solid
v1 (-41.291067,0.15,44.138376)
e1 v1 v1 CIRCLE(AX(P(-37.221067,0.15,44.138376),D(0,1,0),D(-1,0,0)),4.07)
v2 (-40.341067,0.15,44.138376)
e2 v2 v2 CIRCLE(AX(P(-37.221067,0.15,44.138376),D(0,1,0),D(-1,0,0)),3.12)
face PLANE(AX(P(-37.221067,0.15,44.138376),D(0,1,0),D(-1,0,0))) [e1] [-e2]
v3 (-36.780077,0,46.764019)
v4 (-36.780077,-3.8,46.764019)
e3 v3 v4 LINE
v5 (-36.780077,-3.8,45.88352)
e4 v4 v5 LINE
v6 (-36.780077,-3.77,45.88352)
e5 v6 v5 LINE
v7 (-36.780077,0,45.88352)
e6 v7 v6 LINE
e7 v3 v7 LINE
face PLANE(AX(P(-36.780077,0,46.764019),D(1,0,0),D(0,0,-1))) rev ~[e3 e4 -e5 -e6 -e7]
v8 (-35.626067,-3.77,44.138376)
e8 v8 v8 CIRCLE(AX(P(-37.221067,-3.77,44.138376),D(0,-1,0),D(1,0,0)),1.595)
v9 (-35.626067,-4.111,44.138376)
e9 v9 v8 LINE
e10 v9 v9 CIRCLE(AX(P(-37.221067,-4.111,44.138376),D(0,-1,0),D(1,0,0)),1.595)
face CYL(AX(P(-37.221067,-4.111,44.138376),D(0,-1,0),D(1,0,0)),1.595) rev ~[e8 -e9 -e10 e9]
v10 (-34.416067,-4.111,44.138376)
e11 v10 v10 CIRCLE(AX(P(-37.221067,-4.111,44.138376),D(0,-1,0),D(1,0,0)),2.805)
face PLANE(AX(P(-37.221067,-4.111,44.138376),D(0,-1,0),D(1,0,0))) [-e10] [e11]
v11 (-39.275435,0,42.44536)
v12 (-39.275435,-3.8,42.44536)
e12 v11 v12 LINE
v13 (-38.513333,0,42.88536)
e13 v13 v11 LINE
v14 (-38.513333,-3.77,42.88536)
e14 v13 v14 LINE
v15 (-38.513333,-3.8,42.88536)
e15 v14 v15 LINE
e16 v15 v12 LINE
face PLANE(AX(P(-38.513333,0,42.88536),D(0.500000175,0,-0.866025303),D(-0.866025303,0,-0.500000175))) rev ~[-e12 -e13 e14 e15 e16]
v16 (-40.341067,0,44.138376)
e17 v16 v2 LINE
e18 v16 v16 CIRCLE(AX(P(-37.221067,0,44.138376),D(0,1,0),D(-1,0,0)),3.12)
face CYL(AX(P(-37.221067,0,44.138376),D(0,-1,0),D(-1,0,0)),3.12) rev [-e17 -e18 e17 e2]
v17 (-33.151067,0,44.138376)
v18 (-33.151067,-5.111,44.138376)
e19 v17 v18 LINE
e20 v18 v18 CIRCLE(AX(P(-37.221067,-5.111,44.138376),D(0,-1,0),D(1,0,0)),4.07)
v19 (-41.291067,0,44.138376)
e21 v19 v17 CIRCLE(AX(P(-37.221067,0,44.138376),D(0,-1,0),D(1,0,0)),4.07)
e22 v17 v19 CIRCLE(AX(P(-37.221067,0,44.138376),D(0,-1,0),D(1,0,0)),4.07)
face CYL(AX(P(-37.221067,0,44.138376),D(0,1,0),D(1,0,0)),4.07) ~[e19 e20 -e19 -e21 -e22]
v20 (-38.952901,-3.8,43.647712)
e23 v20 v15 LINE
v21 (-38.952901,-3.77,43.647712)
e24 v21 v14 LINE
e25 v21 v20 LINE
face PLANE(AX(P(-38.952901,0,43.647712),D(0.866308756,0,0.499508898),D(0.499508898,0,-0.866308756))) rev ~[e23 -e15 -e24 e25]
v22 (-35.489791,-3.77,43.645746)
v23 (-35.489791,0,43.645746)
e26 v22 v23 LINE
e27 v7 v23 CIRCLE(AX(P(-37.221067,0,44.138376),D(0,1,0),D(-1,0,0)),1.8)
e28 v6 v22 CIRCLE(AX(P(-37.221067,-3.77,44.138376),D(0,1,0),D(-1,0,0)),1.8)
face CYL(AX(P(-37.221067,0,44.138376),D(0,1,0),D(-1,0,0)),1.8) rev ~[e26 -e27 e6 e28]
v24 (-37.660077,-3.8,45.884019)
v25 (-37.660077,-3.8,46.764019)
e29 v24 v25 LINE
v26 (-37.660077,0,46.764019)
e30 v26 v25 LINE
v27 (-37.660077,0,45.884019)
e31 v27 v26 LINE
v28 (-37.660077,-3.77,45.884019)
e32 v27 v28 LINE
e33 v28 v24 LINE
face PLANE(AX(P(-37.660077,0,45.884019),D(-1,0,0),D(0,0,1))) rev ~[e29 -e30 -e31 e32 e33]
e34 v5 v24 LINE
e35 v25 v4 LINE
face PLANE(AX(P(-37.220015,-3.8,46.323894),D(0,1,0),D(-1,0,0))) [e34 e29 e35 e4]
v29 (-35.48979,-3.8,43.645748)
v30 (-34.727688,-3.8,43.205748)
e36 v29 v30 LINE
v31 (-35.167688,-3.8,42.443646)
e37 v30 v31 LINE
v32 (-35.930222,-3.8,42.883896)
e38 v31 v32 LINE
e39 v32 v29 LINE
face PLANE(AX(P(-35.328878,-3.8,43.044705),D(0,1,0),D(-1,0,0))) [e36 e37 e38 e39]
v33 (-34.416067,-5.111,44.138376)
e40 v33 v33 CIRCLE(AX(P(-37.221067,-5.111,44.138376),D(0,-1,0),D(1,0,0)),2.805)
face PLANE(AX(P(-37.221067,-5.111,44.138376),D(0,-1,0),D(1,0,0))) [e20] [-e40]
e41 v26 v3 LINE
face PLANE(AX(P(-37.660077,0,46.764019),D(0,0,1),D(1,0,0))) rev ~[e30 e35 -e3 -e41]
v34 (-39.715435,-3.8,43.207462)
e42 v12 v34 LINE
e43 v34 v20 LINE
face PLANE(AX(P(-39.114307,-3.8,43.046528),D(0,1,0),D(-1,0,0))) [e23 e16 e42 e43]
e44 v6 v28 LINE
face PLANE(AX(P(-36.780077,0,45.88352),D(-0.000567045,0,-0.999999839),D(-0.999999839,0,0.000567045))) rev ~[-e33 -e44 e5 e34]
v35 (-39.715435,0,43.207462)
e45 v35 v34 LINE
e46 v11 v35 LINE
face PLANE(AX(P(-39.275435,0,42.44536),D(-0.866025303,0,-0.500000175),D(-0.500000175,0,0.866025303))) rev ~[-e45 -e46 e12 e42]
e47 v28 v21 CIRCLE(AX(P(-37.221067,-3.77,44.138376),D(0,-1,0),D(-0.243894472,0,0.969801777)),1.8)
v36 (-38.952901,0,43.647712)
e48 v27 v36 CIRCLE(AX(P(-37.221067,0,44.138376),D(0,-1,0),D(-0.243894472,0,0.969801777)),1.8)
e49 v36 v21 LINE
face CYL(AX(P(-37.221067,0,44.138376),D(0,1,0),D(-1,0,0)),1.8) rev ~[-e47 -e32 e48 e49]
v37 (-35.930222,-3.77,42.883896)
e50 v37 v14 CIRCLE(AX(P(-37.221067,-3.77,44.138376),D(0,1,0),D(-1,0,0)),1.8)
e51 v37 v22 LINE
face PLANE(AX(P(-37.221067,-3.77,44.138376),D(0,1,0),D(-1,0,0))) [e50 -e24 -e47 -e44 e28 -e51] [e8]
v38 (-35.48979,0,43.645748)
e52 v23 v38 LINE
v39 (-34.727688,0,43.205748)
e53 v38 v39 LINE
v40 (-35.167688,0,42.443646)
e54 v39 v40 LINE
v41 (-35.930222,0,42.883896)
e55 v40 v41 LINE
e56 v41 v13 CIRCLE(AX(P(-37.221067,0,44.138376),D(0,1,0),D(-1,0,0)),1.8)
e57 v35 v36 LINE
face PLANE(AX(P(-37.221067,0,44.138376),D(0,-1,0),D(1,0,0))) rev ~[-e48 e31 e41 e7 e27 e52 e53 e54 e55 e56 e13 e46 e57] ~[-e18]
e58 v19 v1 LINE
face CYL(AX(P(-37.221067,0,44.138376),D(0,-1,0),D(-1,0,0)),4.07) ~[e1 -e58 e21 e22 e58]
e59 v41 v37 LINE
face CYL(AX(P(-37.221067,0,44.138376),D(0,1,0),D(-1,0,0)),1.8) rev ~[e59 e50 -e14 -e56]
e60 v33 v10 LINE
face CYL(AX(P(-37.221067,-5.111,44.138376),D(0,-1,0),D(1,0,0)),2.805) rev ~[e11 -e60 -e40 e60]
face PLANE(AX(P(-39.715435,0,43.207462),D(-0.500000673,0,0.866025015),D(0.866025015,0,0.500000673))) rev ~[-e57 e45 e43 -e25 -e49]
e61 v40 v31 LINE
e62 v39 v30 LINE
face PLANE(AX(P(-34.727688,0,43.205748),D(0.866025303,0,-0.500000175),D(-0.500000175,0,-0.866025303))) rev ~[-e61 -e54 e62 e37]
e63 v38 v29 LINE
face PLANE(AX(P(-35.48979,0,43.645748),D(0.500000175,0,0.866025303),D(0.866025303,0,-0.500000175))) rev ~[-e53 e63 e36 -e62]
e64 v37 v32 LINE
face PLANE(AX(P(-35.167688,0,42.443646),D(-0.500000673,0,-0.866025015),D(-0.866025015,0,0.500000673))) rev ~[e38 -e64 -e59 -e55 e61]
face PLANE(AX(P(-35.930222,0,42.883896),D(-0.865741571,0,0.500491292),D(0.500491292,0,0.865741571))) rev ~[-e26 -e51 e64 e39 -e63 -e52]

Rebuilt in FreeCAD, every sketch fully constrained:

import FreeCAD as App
import Part
import Sketcher
from FreeCAD import Vector
Q = App.Units.Quantity


def add_polygon(sketch, points):
    """Adds a closed chain of lines whose ends are joined by coincident constraints."""
    first, n = sketch.GeometryCount, len(points)
    for a, b in zip(points, points[1:] + points[:1]):
        sketch.addGeometry(Part.LineSegment(App.Vector(*a, 0), App.Vector(*b, 0)), False)
    for i in range(n):
        sketch.addConstraint(Sketcher.Constraint("Coincident", first + i, 2, first + (i + 1) % n, 1))

doc = App.newDocument("Part")
params = doc.addObject("Spreadsheet::Sheet", "Params")
for row, (alias, value) in enumerate([
    ("sketch1_diameter", "8.14 mm"),
    ("pad1_length", "5.111 mm"),
    ("sketch2_diameter", "5.61 mm"),
    ("pocket1_length", "1 mm"),
    ("sketch3_diameter", "3.6 mm"),
    ("pocket2_length", "3.77 mm"),
    ("sketch4_diameter", "3.19 mm"),
    ("sketch5_width", "0.88 mm"),
    ("pocket4_length", "3.8 mm"),
    ("sketch6_diameter", "8.14 mm"),
    ("sketch6_diameter2", "6.24 mm"),
    ("pad2_length", "0.15 mm"),
], start=1):
    params.set(f"A{row}", alias)
    params.set(f"B{row}", "=" + value)
    params.setAlias(f"B{row}", alias)

body = doc.addObject("PartDesign::Body", "Body")

# Sketch on XZ plane
sketch1 = body.newObject("Sketcher::SketchObject", "Sketch")
sketch1.AttachmentSupport = (doc.getObject("XZ_Plane"), [""])
sketch1.MapMode = "FlatFace"
sketch1.addGeometry(Part.Circle(Vector(-37.2, 44.1, 0), Vector(0, 0, 1), 4.1), False)
sketch1.addConstraint(Sketcher.Constraint("Diameter", 0, Q("8.14 mm")))
sketch1.addConstraint(Sketcher.Constraint("DistanceX", 0, 3, -1, 1, Q("37.221067 mm")))
sketch1.addConstraint(Sketcher.Constraint("DistanceY", -1, 1, 0, 3, Q("44.138376 mm")))
sketch1.setExpression("Constraints[0]", "Params.sketch1_diameter")
pad1 = body.newObject("PartDesign::Pad", "Pad")
pad1.Profile = sketch1
pad1.setExpression("Length", "Params.pad1_length")

# Sketch on XZ plane
sketch2 = body.newObject("Sketcher::SketchObject", "Sketch001")
sketch2.AttachmentSupport = (doc.getObject("XZ_Plane"), [""])
sketch2.MapMode = "FlatFace"
sketch2.AttachmentOffset = App.Placement(Vector(0, 0, 5.111), App.Rotation())
sketch2.addGeometry(Part.Circle(Vector(-37.2, 44.1, 0), Vector(0, 0, 1), 2.8), False)
sketch2.addConstraint(Sketcher.Constraint("Diameter", 0, Q("5.61 mm")))
sketch2.addConstraint(Sketcher.Constraint("DistanceX", 0, 3, -1, 1, Q("37.221067 mm")))
sketch2.addConstraint(Sketcher.Constraint("DistanceY", -1, 1, 0, 3, Q("44.138376 mm")))
sketch2.setExpression("Constraints[0]", "Params.sketch2_diameter")
pocket1 = body.newObject("PartDesign::Pocket", "Pocket")
pocket1.Profile = sketch2
pocket1.setExpression("Length", "Params.pocket1_length")

# Sketch on XZ plane
sketch3 = body.newObject("Sketcher::SketchObject", "Sketch002")
sketch3.AttachmentSupport = (doc.getObject("XZ_Plane"), [""])
sketch3.MapMode = "FlatFace"
sketch3.addGeometry(Part.Circle(Vector(-37.2, 44.1, 0), Vector(0, 0, 1), 1.8), False)
sketch3.addConstraint(Sketcher.Constraint("Diameter", 0, Q("3.6 mm")))
sketch3.addConstraint(Sketcher.Constraint("DistanceX", 0, 3, -1, 1, Q("37.221067 mm")))
sketch3.addConstraint(Sketcher.Constraint("DistanceY", -1, 1, 0, 3, Q("44.138376 mm")))
sketch3.setExpression("Constraints[0]", "Params.sketch3_diameter")
pocket2 = body.newObject("PartDesign::Pocket", "Pocket001")
pocket2.Profile = sketch3
pocket2.setExpression("Length", "Params.pocket2_length")
pocket2.Reversed = True

# Sketch on XZ plane
sketch4 = body.newObject("Sketcher::SketchObject", "Sketch003")
sketch4.AttachmentSupport = (doc.getObject("XZ_Plane"), [""])
sketch4.MapMode = "FlatFace"
sketch4.AttachmentOffset = App.Placement(Vector(0, 0, 4.111), App.Rotation())
sketch4.addGeometry(Part.Circle(Vector(-37.2, 44.1, 0), Vector(0, 0, 1), 1.6), False)
sketch4.addConstraint(Sketcher.Constraint("Diameter", 0, Q("3.19 mm")))
sketch4.addConstraint(Sketcher.Constraint("DistanceX", 0, 3, -1, 1, Q("37.221067 mm")))
sketch4.addConstraint(Sketcher.Constraint("DistanceY", -1, 1, 0, 3, Q("44.138376 mm")))
sketch4.setExpression("Constraints[0]", "Params.sketch4_diameter")
pocket3 = body.newObject("PartDesign::Pocket", "Pocket002")
pocket3.Profile = sketch4
pocket3.Type = "ThroughAll"

# Sketch on XZ plane
sketch5 = body.newObject("Sketcher::SketchObject", "Sketch004")
sketch5.AttachmentSupport = (doc.getObject("XZ_Plane"), [""])
sketch5.MapMode = "FlatFace"
add_polygon(sketch5, [(-36.8, 46.8), (-36.8, 45.9), (-37.7, 45.9), (-37.7, 46.8)])  # lines 0-3
add_polygon(sketch5, [(-34.7, 43.2), (-35.2, 42.4), (-35.9, 42.9), (-35.5, 43.6)])  # lines 4-7
add_polygon(sketch5, [(-39.3, 42.4), (-39.7, 43.2), (-39, 43.6), (-38.5, 42.9)])  # lines 8-11
sketch5.addConstraint(Sketcher.Constraint("Vertical", 0))
sketch5.addConstraint(Sketcher.Constraint("Vertical", 2))
sketch5.addConstraint(Sketcher.Constraint("Horizontal", 3))
sketch5.addConstraint(Sketcher.Constraint("Perpendicular", 4, 5))
sketch5.addConstraint(Sketcher.Constraint("Parallel", 5, 7))
sketch5.addConstraint(Sketcher.Constraint("Perpendicular", 8, 9))
sketch5.addConstraint(Sketcher.Constraint("Parallel", 9, 11))
sketch5.addConstraint(Sketcher.Constraint("Equal", 3, 2))
sketch5.addConstraint(Sketcher.Constraint("Equal", 1, 4))
sketch5.addConstraint(Sketcher.Constraint("Equal", 6, 7))
sketch5.addConstraint(Sketcher.Constraint("Equal", 7, 8))
sketch5.addConstraint(Sketcher.Constraint("Equal", 5, 9))
sketch5.addConstraint(Sketcher.Constraint("Equal", 10, 11))
sketch5.addConstraint(Sketcher.Constraint("Angle", 4, Q("-120.000012 deg")))
sketch5.addConstraint(Sketcher.Constraint("Angle", 8, Q("120.000012 deg")))
sketch5.addConstraint(Sketcher.Constraint("DistanceX", 3, 1, 3, 2, Q("0.88 mm")))
sketch5.addConstraint(Sketcher.Constraint("DistanceY", 0, 2, 0, 1, Q("0.880499 mm")))
sketch5.addConstraint(Sketcher.Constraint("Distance", 5, Q("0.880499 mm")))
sketch5.addConstraint(Sketcher.Constraint("DistanceX", 9, 2, -1, 1, Q("38.952901 mm")))
sketch5.addConstraint(Sketcher.Constraint("DistanceY", -1, 1, 0, 2, Q("45.88352 mm")))
sketch5.addConstraint(Sketcher.Constraint("DistanceX", 6, 2, -1, 1, Q("35.48979 mm")))
sketch5.addConstraint(Sketcher.Constraint("DistanceY", -1, 1, 10, 2, Q("42.88536 mm")))
sketch5.addConstraint(Sketcher.Constraint("DistanceX", 0, 2, 4, 2, Q("1.612389 mm")))
sketch5.addConstraint(Sketcher.Constraint("DistanceY", 6, 2, 0, 2, Q("2.237772 mm")))
sketch5.setExpression("Constraints[27]", "Params.sketch5_width")
pocket4 = body.newObject("PartDesign::Pocket", "Pocket003")
pocket4.Profile = sketch5
pocket4.setExpression("Length", "Params.pocket4_length")
pocket4.Reversed = True

# Sketch on XZ plane
sketch6 = body.newObject("Sketcher::SketchObject", "Sketch005")
sketch6.AttachmentSupport = (doc.getObject("XZ_Plane"), [""])
sketch6.MapMode = "FlatFace"
sketch6.addGeometry(Part.Circle(Vector(-37.2, 44.1, 0), Vector(0, 0, 1), 4.1), False)
sketch6.addGeometry(Part.Circle(Vector(-37.2, 44.1, 0), Vector(0, 0, 1), 3.1), False)
sketch6.addConstraint(Sketcher.Constraint("Coincident", 1, 3, 0, 3))
sketch6.addConstraint(Sketcher.Constraint("Diameter", 0, Q("8.14 mm")))
sketch6.addConstraint(Sketcher.Constraint("Diameter", 1, Q("6.24 mm")))
sketch6.addConstraint(Sketcher.Constraint("DistanceX", 0, 3, -1, 1, Q("37.221067 mm")))
sketch6.addConstraint(Sketcher.Constraint("DistanceY", -1, 1, 0, 3, Q("44.138376 mm")))
sketch6.setExpression("Constraints[1]", "Params.sketch6_diameter")
sketch6.setExpression("Constraints[2]", "Params.sketch6_diameter2")
pad2 = body.newObject("PartDesign::Pad", "Pad001")
pad2.Profile = sketch6
pad2.setExpression("Length", "Params.pad2_length")
pad2.Reversed = True

doc.recompute()
